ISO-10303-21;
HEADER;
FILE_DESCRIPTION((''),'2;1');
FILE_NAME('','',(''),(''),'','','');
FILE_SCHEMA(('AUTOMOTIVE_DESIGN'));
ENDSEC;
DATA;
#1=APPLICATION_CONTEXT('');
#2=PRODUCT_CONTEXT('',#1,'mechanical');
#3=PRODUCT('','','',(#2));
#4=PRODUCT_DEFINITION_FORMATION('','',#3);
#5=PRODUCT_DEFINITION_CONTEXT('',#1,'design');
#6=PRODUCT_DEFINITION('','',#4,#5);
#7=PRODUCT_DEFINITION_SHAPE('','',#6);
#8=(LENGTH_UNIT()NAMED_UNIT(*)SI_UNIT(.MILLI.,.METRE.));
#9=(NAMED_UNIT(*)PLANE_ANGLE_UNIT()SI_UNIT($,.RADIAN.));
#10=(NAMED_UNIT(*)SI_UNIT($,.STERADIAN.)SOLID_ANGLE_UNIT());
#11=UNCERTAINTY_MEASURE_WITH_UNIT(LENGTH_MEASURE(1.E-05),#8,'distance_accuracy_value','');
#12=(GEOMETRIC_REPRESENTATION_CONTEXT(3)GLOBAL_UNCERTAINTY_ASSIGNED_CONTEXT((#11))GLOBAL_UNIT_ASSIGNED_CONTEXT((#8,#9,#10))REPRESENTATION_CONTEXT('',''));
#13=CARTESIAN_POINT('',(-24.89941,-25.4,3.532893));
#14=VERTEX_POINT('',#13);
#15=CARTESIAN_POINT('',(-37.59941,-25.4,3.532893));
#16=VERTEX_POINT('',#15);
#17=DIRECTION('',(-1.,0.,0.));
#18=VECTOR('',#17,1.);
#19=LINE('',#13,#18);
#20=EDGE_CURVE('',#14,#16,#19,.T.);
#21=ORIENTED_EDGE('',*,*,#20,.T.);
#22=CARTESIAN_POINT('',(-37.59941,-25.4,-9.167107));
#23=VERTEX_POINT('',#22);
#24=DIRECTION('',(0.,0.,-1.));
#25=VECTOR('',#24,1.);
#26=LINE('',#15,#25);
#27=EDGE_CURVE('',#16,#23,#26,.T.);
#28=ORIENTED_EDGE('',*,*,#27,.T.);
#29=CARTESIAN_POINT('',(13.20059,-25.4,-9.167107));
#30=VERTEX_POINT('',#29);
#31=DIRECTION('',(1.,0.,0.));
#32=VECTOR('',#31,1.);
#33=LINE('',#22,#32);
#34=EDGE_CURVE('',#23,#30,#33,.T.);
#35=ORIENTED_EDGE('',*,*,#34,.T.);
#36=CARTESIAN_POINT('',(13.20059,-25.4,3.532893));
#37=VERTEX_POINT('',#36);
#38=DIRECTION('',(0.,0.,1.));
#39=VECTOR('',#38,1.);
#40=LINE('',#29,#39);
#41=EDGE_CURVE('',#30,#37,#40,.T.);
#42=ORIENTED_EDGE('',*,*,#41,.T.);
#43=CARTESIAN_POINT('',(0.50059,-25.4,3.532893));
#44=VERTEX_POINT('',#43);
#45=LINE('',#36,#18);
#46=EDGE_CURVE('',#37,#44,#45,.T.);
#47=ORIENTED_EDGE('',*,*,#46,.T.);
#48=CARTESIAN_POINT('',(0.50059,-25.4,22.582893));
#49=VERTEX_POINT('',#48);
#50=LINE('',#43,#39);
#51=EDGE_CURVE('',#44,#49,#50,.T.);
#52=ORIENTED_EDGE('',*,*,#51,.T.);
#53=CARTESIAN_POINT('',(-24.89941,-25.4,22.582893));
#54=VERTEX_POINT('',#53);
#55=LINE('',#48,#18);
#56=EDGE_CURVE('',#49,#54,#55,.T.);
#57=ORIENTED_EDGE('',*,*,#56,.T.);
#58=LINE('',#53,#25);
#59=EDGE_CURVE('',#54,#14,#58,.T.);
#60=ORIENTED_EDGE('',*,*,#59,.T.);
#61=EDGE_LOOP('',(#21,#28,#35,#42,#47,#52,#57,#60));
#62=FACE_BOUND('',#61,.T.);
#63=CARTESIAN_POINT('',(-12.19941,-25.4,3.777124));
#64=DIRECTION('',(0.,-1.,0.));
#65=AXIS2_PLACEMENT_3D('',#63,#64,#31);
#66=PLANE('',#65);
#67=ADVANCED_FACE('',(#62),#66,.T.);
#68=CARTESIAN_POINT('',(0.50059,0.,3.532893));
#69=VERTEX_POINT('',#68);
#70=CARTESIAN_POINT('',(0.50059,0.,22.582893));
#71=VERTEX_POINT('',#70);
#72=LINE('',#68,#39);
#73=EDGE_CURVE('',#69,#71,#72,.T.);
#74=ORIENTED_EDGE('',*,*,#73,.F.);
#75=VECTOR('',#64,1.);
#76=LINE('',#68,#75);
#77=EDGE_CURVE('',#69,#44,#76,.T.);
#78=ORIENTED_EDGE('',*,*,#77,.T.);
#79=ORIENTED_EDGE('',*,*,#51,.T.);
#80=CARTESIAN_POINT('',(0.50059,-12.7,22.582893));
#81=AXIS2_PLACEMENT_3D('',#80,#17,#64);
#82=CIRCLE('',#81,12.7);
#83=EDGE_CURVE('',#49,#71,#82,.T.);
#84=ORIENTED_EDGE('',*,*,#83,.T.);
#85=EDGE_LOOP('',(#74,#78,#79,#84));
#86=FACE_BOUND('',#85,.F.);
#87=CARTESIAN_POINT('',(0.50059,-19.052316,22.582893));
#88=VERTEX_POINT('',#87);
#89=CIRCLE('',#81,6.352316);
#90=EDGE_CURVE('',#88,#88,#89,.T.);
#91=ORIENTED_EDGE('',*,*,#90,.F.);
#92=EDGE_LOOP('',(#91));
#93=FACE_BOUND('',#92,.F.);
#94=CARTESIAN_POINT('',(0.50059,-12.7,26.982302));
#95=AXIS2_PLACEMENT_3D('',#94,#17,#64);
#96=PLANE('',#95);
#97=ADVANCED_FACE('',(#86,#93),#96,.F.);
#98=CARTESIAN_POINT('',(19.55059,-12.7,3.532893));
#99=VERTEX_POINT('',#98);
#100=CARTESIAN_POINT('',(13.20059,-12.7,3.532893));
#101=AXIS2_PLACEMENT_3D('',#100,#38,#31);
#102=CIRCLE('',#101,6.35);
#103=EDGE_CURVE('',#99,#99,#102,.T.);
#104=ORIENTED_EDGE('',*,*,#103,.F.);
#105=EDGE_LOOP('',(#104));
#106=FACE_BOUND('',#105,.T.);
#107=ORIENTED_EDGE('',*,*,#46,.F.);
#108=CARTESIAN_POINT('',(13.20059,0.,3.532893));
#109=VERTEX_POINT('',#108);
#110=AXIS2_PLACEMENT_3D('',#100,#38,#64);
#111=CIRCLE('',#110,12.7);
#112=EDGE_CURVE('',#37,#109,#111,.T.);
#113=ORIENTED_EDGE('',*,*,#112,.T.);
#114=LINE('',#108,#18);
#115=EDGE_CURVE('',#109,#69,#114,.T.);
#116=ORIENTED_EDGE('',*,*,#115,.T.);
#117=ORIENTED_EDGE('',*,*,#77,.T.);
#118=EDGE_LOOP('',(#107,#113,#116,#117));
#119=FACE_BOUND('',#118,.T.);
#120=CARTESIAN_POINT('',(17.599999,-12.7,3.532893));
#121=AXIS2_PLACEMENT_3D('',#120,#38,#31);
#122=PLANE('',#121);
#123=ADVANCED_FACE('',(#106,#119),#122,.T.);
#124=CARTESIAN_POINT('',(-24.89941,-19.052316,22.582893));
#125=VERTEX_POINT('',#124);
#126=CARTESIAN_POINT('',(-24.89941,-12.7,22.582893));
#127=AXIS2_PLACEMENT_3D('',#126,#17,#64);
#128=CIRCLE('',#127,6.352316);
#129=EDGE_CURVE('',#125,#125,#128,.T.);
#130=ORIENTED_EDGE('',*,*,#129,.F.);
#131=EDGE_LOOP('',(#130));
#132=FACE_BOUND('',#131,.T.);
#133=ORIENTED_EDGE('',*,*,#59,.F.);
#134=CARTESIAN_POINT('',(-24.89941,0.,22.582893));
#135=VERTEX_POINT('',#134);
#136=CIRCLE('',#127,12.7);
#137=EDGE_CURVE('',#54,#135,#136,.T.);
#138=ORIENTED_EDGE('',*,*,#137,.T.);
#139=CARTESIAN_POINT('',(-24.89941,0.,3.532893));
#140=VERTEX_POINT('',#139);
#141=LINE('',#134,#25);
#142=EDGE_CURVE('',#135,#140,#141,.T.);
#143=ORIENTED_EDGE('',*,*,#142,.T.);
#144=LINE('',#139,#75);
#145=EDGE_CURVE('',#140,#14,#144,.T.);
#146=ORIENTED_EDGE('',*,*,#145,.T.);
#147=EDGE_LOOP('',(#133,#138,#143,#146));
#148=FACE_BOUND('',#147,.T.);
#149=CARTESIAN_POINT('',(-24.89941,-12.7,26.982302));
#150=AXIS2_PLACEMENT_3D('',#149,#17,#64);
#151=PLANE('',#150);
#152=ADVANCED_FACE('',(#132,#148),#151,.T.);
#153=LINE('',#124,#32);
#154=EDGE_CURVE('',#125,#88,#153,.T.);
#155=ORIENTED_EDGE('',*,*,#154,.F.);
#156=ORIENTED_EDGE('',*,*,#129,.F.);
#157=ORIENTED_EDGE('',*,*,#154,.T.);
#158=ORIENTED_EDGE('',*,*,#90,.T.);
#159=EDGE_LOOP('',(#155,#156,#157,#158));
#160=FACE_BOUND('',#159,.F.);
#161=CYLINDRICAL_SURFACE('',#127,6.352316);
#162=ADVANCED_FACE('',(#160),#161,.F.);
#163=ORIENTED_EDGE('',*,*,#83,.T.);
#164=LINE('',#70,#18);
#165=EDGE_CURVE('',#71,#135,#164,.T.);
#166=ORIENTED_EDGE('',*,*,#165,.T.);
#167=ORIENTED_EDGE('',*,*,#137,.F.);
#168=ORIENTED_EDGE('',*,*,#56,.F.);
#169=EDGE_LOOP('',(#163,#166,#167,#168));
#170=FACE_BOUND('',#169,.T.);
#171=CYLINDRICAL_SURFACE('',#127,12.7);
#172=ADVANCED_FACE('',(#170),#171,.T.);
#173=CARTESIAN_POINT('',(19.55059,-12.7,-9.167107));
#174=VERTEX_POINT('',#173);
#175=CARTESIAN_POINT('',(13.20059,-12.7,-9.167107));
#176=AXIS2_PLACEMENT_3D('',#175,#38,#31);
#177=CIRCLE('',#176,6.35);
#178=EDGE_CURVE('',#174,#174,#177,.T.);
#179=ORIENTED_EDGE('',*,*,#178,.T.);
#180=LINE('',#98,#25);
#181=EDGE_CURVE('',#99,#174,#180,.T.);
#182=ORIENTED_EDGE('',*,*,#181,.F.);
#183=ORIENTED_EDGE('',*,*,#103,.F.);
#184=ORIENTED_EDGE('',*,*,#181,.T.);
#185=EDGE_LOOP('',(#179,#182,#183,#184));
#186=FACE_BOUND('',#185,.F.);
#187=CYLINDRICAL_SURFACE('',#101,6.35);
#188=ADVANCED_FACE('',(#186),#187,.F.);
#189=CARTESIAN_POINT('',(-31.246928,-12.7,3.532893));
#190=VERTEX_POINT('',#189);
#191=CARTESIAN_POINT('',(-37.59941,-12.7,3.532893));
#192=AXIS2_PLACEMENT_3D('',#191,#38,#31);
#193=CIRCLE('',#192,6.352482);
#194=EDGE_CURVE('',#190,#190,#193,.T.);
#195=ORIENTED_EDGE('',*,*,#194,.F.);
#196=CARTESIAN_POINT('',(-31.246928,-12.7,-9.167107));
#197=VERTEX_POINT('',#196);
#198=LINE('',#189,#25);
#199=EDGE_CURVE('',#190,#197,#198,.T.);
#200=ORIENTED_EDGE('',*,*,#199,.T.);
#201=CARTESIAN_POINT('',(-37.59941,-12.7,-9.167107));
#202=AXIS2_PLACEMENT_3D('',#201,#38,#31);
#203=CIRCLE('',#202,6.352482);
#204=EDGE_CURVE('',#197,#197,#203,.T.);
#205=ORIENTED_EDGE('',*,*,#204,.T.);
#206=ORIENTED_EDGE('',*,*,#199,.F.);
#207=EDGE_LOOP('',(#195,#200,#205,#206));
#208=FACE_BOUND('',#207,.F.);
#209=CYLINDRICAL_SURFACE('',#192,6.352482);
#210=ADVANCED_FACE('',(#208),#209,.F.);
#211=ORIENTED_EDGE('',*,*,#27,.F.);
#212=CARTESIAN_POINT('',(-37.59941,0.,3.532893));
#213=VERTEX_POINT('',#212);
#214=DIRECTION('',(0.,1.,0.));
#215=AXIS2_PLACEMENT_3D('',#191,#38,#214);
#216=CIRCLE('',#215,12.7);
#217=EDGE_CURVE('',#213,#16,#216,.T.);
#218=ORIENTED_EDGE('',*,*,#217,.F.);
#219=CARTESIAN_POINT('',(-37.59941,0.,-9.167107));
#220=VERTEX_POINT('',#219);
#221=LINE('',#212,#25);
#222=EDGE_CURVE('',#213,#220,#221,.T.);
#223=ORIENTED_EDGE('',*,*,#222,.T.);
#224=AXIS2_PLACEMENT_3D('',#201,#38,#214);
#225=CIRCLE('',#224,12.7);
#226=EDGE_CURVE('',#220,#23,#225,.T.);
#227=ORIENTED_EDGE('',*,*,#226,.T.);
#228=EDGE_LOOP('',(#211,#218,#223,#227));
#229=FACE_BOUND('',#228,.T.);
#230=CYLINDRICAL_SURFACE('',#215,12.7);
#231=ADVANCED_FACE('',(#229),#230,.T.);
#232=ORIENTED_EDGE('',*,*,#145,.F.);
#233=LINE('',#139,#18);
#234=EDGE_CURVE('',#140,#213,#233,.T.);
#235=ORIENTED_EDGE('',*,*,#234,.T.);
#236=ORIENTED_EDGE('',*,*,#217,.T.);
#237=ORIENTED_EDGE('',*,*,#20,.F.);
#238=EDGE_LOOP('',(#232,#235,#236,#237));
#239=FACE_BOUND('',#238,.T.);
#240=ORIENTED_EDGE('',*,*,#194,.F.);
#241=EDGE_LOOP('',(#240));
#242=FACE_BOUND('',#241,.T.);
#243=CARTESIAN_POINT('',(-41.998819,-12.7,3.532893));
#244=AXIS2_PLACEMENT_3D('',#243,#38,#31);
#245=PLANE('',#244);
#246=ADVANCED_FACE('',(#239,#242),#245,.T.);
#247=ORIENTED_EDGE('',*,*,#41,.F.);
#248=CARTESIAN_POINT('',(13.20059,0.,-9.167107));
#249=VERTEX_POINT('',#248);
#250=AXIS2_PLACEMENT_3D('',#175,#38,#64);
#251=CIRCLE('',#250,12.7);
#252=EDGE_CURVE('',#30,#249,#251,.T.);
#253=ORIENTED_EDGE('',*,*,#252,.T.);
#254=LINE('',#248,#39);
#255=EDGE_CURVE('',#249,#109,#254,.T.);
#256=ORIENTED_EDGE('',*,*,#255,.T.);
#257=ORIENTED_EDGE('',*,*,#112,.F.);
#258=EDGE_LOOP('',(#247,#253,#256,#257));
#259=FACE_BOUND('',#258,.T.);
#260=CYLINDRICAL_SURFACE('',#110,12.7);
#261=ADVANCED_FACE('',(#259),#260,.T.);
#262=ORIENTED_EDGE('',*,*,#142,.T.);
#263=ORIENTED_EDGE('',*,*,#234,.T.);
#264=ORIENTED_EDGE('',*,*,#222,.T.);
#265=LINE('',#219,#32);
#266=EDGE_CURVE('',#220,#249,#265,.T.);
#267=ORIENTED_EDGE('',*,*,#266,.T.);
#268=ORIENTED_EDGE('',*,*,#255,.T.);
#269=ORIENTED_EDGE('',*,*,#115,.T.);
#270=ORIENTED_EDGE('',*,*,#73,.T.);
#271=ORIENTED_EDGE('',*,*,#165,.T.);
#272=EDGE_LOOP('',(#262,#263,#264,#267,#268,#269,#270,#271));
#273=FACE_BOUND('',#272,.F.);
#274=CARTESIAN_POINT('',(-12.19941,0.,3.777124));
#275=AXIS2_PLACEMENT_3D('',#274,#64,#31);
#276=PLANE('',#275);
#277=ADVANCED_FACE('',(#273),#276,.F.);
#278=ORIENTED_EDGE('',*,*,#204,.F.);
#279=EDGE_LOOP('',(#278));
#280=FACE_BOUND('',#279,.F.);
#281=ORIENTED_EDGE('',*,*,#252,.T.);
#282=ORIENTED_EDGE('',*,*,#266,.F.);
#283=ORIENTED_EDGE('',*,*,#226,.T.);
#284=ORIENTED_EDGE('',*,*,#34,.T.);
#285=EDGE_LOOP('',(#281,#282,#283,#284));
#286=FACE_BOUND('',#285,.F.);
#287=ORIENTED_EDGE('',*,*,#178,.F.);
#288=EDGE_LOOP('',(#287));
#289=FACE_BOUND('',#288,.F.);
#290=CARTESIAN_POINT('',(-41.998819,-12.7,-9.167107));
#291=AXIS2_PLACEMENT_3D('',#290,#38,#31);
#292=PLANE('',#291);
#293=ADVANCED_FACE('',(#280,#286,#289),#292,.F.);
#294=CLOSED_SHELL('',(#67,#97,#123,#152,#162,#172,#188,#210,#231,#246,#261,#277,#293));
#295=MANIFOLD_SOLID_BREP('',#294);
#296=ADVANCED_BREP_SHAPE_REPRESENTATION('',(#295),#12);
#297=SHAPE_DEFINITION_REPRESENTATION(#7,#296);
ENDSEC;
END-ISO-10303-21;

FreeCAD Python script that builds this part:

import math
import FreeCAD as App
import Part
import Sketcher

V = App.Vector
Q = App.Units.Quantity


def add_polygon(sketch, points):
    """Adds a closed chain of lines whose ends are joined by coincident constraints."""
    first, n = sketch.GeometryCount, len(points)
    for a, b in zip(points, points[1:] + points[:1]):
        sketch.addGeometry(Part.LineSegment(App.Vector(*a, 0), App.Vector(*b, 0)), False)
    for i in range(n):
        sketch.addConstraint(Sketcher.Constraint("Coincident", first + i, 2, first + (i + 1) % n, 1))

doc = App.newDocument("Part")
body = doc.addObject("PartDesign::Body", "Body")

sketch1 = doc.addObject("Sketcher::SketchObject", "Sketch")
body.addObject(sketch1)
sketch1.AttachmentSupport = (doc.XZ_Plane, [""])
sketch1.MapMode = "FlatFace"
add_polygon(sketch1, [(-37.59941, 3.532893), (-37.59941, -9.167107), (13.20059, -9.167107), (13.20059, 3.532893), (0.50059, 3.532893), (0.50059, 22.582893), (-24.89941, 22.582893), (-24.89941, 3.532893)])
sketch1.addConstraint(Sketcher.Constraint("Vertical", 0))
sketch1.addConstraint(Sketcher.Constraint("Horizontal", 1))
sketch1.addConstraint(Sketcher.Constraint("Vertical", 2))
sketch1.addConstraint(Sketcher.Constraint("Horizontal", 3))
sketch1.addConstraint(Sketcher.Constraint("Vertical", 4))
sketch1.addConstraint(Sketcher.Constraint("Horizontal", 5))
sketch1.addConstraint(Sketcher.Constraint("Vertical", 6))
sketch1.addConstraint(Sketcher.Constraint("Horizontal", 7))
sketch1.addConstraint(Sketcher.Constraint("Horizontal", 3, 2, 6, 2))
sketch1.addConstraint(Sketcher.Constraint("Equal", 3, 7))
sketch1.addConstraint(Sketcher.Constraint("Equal", 7, 0))
sketch1.addConstraint(Sketcher.Constraint("DistanceX", 1, 1, 1, 2, Q("2 in")))
sketch1.addConstraint(Sketcher.Constraint("DistanceX", 5, 2, 5, 1, Q("1 in")))
sketch1.addConstraint(Sketcher.Constraint("DistanceY", 4, 1, 4, 2, Q("0.75 in")))
sketch1.addConstraint(Sketcher.Constraint("DistanceX", 0, 2, -1, 1, Q("37.59941 mm")))
sketch1.addConstraint(Sketcher.Constraint("DistanceY", 0, 2, -1, 1, Q("9.167107 mm")))
pad1 = doc.addObject("PartDesign::Pad", "Pad")
body.addObject(pad1)
pad1.Profile = sketch1
pad1.Length = Q("1 in")

sketch2 = doc.addObject("Sketcher::SketchObject", "Sketch001")
body.addObject(sketch2)
sketch2.AttachmentSupport = (doc.XY_Plane, [""])
sketch2.MapMode = "FlatFace"
sketch2.AttachmentOffset = App.Placement(V(0, 0, 3.532893), App.Rotation())
sketch2.addGeometry(Part.LineSegment(V(13.20059, 0, 0), V(13.20059, -25.4, 0)), False)
sketch2.addGeometry(Part.ArcOfCircle(Part.Circle(V(13.20059, -12.7, 0), V(0, 0, 1), 12.7), math.radians(-90), math.radians(90)), False)
sketch2.addConstraint(Sketcher.Constraint("Coincident", 0, 1, 1, 2))
sketch2.addConstraint(Sketcher.Constraint("Coincident", 1, 1, 0, 2))
sketch2.addConstraint(Sketcher.Constraint("Vertical", 0))
sketch2.addConstraint(Sketcher.Constraint("PointOnObject", 0, 1, -1))
sketch2.addConstraint(Sketcher.Constraint("Vertical", 1, 3, 0, 1))
sketch2.addConstraint(Sketcher.Constraint("Radius", 1, Q("0.5 in")))
sketch2.addConstraint(Sketcher.Constraint("DistanceX", -1, 1, 1, 3, Q("13.20059 mm")))
pad2 = doc.addObject("PartDesign::Pad", "Pad001")
body.addObject(pad2)
pad2.Profile = sketch2
pad2.Length = Q("0.5 in")
pad2.Reversed = True

sketch3 = doc.addObject("Sketcher::SketchObject", "Sketch002")
body.addObject(sketch3)
sketch3.AttachmentSupport = (doc.XY_Plane, [""])
sketch3.MapMode = "FlatFace"
sketch3.AttachmentOffset = App.Placement(V(0, 0, 3.532893), App.Rotation())
sketch3.addGeometry(Part.LineSegment(V(-37.59941, -25.4, 0), V(-37.59941, 0, 0)), False)
sketch3.addGeometry(Part.ArcOfCircle(Part.Circle(V(-37.59941, -12.7, 0), V(0, 0, 1), 12.7), math.radians(90), math.radians(270)), False)
sketch3.addConstraint(Sketcher.Constraint("Coincident", 0, 1, 1, 2))
sketch3.addConstraint(Sketcher.Constraint("Coincident", 1, 1, 0, 2))
sketch3.addConstraint(Sketcher.Constraint("Vertical", 0))
sketch3.addConstraint(Sketcher.Constraint("PointOnObject", 1, 1, -1))
sketch3.addConstraint(Sketcher.Constraint("Vertical", 1, 3, 0, 1))
sketch3.addConstraint(Sketcher.Constraint("Radius", 1, Q("0.5 in")))
sketch3.addConstraint(Sketcher.Constraint("DistanceX", 1, 3, -1, 1, Q("37.59941 mm")))
pad3 = doc.addObject("PartDesign::Pad", "Pad002")
body.addObject(pad3)
pad3.Profile = sketch3
pad3.Length = Q("0.5 in")
pad3.Reversed = True

sketch4 = doc.addObject("Sketcher::SketchObject", "Sketch003")
body.addObject(sketch4)
sketch4.AttachmentSupport = (doc.YZ_Plane, [""])
sketch4.MapMode = "FlatFace"
sketch4.AttachmentOffset = App.Placement(V(0, 0, -24.89941), App.Rotation())
sketch4.addGeometry(Part.LineSegment(V(0, 22.582893, 0), V(-25.4, 22.582893, 0)), False)
sketch4.addGeometry(Part.ArcOfCircle(Part.Circle(V(-12.7, 22.582893, 0), V(0, 0, 1), 12.7), math.radians(0), math.radians(180)), False)
sketch4.addConstraint(Sketcher.Constraint("Coincident", 0, 1, 1, 1))
sketch4.addConstraint(Sketcher.Constraint("Coincident", 1, 2, 0, 2))
sketch4.addConstraint(Sketcher.Constraint("Horizontal", 0))
sketch4.addConstraint(Sketcher.Constraint("PointOnObject", 0, 1, -2))
sketch4.addConstraint(Sketcher.Constraint("Horizontal", 1, 3, 0, 1))
sketch4.addConstraint(Sketcher.Constraint("Radius", 1, Q("0.5 in")))
sketch4.addConstraint(Sketcher.Constraint("DistanceY", -1, 1, 1, 3, Q("22.582893 mm")))
pad4 = doc.addObject("PartDesign::Pad", "Pad003")
body.addObject(pad4)
pad4.Profile = sketch4
pad4.Length = Q("1 in")

sketch5 = doc.addObject("Sketcher::SketchObject", "Sketch004")
body.addObject(sketch5)
sketch5.AttachmentSupport = (doc.YZ_Plane, [""])
sketch5.MapMode = "FlatFace"
sketch5.AttachmentOffset = App.Placement(V(0, 0, -24.89941), App.Rotation())
sketch5.addGeometry(Part.Circle(V(-12.7, 22.582893, 0), V(0, 0, 1), 6.352316), False)
sketch5.addConstraint(Sketcher.Constraint("DistanceX", 0, 3, -1, 1, Q("0.5 in")))
sketch5.addConstraint(Sketcher.Constraint("Diameter", 0, Q("12.704632 mm")))
sketch5.addConstraint(Sketcher.Constraint("DistanceY", -1, 1, 0, 3, Q("22.582893 mm")))
pocket1 = doc.addObject("PartDesign::Pocket", "Pocket")
body.addObject(pocket1)
pocket1.Profile = sketch5
pocket1.Length = Q("1 in")
pocket1.Reversed = True

sketch6 = doc.addObject("Sketcher::SketchObject", "Sketch005")
body.addObject(sketch6)
sketch6.AttachmentSupport = (doc.XY_Plane, [""])
sketch6.MapMode = "FlatFace"
sketch6.AttachmentOffset = App.Placement(V(0, 0, 3.532893), App.Rotation())
sketch6.addGeometry(Part.Circle(V(-37.59941, -12.7, 0), V(0, 0, 1), 6.352482), False)
sketch6.addConstraint(Sketcher.Constraint("DistanceY", 0, 3, -1, 1, Q("0.5 in")))
sketch6.addConstraint(Sketcher.Constraint("Diameter", 0, Q("12.704964 mm")))
sketch6.addConstraint(Sketcher.Constraint("DistanceX", 0, 3, -1, 1, Q("37.59941 mm")))
pocket2 = doc.addObject("PartDesign::Pocket", "Pocket001")
body.addObject(pocket2)
pocket2.Profile = sketch6
pocket2.Length = Q("1 in")

sketch7 = doc.addObject("Sketcher::SketchObject", "Sketch006")
body.addObject(sketch7)
sketch7.AttachmentSupport = (doc.XY_Plane, [""])
sketch7.MapMode = "FlatFace"
sketch7.AttachmentOffset = App.Placement(V(0, 0, 3.532893), App.Rotation())
sketch7.addGeometry(Part.Circle(V(13.20059, -12.7, 0), V(0, 0, 1), 6.35), False)
sketch7.addConstraint(Sketcher.Constraint("Diameter", 0, Q("0.5 in")))
sketch7.addConstraint(Sketcher.Constraint("DistanceY", 0, 3, -1, 1, Q("0.5 in")))
sketch7.addConstraint(Sketcher.Constraint("DistanceX", -1, 1, 0, 3, Q("13.20059 mm")))
pocket3 = doc.addObject("PartDesign::Pocket", "Pocket002")
body.addObject(pocket3)
pocket3.Profile = sketch7
pocket3.Length = Q("1 in")

doc.recompute()
